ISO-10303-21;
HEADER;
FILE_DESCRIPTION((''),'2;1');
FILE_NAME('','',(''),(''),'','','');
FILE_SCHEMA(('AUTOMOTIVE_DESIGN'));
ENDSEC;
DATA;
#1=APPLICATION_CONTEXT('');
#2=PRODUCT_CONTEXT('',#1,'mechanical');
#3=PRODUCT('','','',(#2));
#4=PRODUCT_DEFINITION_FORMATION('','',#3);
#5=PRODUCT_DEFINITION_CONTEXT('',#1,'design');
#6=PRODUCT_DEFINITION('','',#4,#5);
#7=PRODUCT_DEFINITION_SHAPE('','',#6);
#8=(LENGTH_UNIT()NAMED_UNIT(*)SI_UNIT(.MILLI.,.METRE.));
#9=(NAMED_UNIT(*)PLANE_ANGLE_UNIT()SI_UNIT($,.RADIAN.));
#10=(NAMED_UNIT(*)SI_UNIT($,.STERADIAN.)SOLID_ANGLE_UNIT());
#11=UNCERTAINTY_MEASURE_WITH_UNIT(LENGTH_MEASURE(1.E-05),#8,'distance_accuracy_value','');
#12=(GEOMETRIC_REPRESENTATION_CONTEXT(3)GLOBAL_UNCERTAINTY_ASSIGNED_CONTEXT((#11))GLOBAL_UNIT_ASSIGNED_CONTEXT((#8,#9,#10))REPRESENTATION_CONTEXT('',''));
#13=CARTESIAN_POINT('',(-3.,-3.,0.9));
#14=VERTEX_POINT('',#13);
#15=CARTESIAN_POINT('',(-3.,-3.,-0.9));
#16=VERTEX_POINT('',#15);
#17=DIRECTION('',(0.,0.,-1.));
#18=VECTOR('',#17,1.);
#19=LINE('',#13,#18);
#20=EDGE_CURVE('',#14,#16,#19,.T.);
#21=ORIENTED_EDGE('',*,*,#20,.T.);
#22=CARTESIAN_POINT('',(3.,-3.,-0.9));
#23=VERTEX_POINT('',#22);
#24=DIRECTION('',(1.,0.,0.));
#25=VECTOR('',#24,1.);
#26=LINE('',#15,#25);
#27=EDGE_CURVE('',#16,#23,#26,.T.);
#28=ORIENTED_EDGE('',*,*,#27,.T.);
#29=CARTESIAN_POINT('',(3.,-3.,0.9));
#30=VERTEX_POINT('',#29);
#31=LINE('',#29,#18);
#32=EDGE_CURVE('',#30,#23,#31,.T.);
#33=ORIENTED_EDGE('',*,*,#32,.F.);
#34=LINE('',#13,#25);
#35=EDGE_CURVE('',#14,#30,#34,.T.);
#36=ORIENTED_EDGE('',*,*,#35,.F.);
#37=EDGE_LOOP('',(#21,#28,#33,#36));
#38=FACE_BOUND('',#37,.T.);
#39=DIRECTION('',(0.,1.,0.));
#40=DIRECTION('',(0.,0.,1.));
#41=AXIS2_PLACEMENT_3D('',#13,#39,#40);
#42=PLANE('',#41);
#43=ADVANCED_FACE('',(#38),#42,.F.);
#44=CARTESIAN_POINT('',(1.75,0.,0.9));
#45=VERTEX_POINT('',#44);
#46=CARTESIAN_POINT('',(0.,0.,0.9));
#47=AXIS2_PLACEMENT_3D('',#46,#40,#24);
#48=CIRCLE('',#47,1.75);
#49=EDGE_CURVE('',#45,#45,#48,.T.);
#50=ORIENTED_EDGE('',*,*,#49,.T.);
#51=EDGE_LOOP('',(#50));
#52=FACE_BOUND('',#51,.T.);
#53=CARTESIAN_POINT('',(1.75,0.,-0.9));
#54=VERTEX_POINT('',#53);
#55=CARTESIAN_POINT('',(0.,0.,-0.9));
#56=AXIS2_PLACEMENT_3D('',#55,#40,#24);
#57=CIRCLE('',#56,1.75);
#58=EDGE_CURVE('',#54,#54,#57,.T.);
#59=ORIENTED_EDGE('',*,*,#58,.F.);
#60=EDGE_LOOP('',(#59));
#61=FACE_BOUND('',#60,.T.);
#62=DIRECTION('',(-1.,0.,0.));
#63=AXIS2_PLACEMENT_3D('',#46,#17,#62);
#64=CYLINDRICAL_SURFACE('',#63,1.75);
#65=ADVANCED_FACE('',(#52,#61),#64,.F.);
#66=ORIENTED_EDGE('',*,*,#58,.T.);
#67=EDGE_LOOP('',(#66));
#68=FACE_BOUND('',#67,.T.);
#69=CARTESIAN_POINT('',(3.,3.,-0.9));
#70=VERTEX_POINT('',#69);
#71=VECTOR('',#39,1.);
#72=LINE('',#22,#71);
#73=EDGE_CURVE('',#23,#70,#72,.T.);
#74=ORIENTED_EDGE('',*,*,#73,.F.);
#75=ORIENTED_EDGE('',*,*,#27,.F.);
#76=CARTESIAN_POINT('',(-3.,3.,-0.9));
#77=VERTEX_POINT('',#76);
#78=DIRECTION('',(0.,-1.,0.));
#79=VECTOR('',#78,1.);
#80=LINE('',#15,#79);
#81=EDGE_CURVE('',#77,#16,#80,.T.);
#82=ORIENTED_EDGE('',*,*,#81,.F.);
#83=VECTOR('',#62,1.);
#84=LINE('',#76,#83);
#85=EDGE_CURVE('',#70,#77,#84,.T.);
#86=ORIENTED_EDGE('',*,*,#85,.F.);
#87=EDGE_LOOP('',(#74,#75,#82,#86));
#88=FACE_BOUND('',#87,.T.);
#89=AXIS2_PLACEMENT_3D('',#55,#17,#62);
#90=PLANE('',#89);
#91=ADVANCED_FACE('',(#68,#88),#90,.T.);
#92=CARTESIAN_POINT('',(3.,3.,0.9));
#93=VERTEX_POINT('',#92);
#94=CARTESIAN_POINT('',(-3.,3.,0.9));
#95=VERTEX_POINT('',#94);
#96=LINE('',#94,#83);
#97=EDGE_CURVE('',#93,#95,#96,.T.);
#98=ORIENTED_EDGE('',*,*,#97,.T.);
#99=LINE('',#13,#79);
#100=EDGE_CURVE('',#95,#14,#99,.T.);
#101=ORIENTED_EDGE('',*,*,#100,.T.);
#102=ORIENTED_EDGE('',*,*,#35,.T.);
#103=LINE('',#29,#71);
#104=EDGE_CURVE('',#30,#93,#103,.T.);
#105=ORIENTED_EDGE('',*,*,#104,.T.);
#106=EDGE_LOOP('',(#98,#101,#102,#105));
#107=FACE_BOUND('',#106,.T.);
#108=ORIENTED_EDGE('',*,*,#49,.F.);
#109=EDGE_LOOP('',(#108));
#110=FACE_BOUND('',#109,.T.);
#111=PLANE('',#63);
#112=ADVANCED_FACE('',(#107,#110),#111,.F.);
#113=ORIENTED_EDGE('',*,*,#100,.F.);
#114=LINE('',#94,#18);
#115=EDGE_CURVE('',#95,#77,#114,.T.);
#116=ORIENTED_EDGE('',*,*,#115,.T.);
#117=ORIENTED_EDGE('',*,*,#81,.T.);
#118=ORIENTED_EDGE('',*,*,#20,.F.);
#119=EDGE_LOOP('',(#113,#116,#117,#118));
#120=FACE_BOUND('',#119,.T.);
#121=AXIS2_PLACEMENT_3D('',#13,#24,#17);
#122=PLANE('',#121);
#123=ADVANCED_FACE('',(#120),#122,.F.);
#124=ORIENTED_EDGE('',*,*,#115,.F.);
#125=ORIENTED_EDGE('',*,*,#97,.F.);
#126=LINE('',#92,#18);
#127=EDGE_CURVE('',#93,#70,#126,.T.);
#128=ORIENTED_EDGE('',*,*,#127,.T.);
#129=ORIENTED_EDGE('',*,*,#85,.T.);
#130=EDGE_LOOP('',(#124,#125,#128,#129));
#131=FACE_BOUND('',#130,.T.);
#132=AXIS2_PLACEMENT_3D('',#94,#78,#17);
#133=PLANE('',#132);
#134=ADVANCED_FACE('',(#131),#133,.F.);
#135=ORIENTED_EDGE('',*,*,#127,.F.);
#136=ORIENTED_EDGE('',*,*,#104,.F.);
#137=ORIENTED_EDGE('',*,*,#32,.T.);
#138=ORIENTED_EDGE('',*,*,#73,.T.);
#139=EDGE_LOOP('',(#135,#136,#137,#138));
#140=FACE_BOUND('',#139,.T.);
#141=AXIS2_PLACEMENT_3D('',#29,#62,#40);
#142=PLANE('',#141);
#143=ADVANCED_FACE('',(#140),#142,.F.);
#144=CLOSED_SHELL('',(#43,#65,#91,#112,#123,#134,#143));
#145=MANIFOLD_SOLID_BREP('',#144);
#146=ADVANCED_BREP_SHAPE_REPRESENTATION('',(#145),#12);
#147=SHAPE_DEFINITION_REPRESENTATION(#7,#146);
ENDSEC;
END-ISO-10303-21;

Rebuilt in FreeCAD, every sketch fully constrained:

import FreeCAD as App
import Part
import Sketcher
from FreeCAD import Vector

doc = App.newDocument("Part")
body = doc.addObject("PartDesign::Body", "Body")

# Sketch on XY plane
sketch1 = doc.addObject("Sketcher::SketchObject", "Sketch")
body.addObject(sketch1)
sketch1.AttachmentSupport = (doc.XY_Plane, [""])
sketch1.MapMode = "FlatFace"
sketch1.addGeometry([
    Part.LineSegment(Vector(-3, 3, 0), Vector(-3, -3, 0)),  # 0
    Part.LineSegment(Vector(-3, -3, 0), Vector(3, -3, 0)),  # 1
    Part.LineSegment(Vector(3, -3, 0), Vector(3, 3, 0)),  # 2
    Part.LineSegment(Vector(3, 3, 0), Vector(-3, 3, 0)),  # 3
    Part.Circle(Vector(0, 0, 0), Vector(0, 0, 1), 1.75),  # 4
], False)
sketch1.addConstraint([
    Sketcher.Constraint("Coincident", 0, 2, 1, 1),
    Sketcher.Constraint("Coincident", 1, 2, 2, 1),
    Sketcher.Constraint("Coincident", 2, 2, 3, 1),
    Sketcher.Constraint("Coincident", 3, 2, 0, 1),
    Sketcher.Constraint("Vertical", 0),
    Sketcher.Constraint("Horizontal", 1),
    Sketcher.Constraint("Vertical", 2),
    Sketcher.Constraint("Horizontal", 3),
    Sketcher.Constraint("Coincident", 4, 3, -1, 1),
    Sketcher.Constraint("Symmetric", 0, 2, 2, 2, -1, 1),
    Sketcher.Constraint("Equal", 3, 0),
    Sketcher.Constraint("Diameter", 4, 3.5),
    Sketcher.Constraint("DistanceX", 1, 1, 1, 2, 6.0),
])
pad1 = doc.addObject("PartDesign::Pad", "Pad")
body.addObject(pad1)
pad1.Profile = sketch1
pad1.Length = 1.8
pad1.Midplane = True

doc.recompute()
